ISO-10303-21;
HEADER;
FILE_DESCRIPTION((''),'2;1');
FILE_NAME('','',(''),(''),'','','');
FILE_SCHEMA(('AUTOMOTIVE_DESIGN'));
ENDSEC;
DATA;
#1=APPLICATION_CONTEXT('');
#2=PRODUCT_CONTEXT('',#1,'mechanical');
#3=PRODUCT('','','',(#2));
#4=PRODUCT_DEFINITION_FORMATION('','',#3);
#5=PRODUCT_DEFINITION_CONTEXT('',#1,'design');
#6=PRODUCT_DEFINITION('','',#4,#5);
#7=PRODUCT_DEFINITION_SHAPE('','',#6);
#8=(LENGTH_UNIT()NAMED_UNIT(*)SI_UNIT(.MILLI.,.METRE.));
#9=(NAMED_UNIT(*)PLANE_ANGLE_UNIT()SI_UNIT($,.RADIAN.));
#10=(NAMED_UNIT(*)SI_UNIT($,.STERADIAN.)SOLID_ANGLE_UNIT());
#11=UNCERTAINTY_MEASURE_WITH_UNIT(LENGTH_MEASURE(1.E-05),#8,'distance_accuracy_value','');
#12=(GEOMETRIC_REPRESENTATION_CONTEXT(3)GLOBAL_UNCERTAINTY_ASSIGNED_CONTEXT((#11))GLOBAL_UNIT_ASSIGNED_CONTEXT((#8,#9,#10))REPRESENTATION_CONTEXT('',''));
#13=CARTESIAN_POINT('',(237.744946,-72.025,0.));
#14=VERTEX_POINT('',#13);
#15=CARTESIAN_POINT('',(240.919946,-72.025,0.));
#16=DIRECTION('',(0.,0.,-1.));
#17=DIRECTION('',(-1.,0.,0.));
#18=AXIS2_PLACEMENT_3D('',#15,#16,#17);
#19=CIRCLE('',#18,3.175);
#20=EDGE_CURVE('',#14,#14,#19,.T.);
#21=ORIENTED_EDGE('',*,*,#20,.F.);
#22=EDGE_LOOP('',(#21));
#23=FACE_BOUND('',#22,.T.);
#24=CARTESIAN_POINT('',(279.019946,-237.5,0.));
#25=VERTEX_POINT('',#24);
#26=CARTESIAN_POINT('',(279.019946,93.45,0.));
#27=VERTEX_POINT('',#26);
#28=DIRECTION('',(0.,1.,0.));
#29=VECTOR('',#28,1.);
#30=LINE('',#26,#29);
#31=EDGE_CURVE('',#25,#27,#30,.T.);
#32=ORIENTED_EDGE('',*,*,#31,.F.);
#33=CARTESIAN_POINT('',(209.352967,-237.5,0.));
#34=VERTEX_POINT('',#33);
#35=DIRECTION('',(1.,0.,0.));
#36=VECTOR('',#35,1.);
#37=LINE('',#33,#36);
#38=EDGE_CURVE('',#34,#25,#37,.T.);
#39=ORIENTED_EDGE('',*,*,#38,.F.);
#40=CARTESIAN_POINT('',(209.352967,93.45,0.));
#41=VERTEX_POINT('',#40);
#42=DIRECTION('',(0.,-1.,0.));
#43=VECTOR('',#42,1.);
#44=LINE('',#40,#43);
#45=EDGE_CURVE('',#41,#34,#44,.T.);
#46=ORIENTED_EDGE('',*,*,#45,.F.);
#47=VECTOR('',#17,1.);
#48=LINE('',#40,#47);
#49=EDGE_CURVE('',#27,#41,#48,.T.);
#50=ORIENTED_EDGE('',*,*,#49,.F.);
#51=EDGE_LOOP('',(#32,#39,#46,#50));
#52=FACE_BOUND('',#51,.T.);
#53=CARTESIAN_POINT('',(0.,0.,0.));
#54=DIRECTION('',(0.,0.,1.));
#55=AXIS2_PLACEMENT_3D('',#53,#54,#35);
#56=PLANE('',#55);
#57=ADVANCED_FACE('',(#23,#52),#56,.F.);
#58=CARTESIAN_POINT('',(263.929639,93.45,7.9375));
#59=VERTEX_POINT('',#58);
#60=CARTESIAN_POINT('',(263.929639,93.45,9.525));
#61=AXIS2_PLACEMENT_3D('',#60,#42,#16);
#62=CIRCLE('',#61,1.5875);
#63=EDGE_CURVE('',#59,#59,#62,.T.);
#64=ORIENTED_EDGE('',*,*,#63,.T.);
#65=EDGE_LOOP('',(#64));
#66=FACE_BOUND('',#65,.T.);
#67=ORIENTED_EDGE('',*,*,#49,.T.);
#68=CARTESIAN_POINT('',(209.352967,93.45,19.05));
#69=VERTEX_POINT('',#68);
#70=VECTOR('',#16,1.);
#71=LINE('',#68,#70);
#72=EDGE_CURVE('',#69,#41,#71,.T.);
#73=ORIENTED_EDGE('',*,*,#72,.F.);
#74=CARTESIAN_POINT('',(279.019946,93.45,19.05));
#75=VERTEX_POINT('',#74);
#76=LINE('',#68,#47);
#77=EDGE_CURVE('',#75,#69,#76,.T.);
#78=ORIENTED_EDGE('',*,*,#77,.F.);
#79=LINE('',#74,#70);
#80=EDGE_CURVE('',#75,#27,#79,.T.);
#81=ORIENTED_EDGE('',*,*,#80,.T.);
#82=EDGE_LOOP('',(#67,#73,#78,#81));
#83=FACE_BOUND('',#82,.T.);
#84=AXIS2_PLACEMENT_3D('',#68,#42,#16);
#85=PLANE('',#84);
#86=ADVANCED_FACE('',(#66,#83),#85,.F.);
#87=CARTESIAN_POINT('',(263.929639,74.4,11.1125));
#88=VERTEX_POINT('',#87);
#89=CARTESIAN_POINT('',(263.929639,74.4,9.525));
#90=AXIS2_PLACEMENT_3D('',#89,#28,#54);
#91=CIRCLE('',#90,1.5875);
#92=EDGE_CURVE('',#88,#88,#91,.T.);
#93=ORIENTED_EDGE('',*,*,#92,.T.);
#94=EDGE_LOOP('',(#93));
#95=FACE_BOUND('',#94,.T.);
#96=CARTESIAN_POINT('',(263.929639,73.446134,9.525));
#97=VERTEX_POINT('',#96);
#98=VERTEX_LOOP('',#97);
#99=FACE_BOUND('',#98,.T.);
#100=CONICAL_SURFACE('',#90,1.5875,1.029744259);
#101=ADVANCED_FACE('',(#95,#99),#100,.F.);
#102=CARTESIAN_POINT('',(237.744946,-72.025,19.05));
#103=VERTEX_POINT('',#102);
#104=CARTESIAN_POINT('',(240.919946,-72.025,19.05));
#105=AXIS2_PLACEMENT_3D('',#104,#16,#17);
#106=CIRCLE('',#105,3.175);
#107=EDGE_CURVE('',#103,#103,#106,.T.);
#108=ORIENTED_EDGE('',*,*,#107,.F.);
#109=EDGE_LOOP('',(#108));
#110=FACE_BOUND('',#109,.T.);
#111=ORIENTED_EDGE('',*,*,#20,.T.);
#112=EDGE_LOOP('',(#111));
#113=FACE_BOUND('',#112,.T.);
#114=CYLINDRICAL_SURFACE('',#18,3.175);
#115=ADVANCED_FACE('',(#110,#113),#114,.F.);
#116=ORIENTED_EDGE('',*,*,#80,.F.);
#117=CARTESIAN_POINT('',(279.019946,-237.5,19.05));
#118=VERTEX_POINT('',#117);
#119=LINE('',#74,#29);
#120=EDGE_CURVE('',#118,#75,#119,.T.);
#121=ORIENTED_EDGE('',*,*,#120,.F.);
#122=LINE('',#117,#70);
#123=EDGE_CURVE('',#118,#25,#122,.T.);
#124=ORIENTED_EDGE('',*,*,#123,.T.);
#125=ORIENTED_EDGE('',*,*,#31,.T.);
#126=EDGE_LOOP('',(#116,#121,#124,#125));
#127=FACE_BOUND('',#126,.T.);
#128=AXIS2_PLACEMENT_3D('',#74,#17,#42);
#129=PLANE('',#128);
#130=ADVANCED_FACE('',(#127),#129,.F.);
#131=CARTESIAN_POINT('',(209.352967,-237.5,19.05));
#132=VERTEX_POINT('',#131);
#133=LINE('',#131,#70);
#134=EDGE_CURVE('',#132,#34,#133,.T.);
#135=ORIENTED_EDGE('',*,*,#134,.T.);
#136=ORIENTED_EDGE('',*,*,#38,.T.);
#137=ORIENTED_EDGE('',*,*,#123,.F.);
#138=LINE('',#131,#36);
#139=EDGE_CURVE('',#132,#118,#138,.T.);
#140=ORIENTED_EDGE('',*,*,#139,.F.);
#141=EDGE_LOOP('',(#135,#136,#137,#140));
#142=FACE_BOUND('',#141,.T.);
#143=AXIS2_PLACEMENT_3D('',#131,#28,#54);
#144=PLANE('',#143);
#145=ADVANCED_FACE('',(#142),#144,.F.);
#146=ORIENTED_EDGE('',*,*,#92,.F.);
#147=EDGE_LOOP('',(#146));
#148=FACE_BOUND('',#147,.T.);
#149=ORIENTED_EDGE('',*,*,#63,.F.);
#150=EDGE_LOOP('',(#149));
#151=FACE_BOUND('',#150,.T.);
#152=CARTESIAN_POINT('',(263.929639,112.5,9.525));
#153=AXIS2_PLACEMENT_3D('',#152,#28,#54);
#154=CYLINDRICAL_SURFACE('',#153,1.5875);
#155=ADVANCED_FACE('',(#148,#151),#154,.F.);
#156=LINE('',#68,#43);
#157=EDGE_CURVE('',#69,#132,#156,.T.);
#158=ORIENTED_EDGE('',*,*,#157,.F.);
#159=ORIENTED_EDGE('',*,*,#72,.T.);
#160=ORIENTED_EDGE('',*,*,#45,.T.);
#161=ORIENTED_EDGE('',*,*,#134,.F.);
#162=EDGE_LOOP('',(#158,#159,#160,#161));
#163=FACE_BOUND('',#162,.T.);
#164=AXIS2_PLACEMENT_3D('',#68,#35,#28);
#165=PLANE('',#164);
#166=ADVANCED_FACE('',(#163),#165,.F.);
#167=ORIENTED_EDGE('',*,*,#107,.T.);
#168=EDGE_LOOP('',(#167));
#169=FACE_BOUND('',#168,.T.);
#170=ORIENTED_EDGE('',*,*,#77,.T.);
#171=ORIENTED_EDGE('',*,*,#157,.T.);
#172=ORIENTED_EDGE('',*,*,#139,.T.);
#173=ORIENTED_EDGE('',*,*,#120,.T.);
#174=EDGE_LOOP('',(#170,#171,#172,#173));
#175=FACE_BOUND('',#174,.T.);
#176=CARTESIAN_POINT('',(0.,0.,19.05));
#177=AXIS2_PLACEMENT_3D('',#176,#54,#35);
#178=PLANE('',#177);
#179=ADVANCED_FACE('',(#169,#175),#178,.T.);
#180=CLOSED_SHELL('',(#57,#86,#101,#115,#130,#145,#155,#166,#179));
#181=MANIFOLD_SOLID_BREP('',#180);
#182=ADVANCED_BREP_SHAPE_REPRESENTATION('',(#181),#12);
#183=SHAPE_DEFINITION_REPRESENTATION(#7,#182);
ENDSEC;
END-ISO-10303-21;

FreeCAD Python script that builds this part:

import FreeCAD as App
import Part
import Sketcher

V = App.Vector
Q = App.Units.Quantity

doc = App.newDocument("Part")
body = doc.addObject("PartDesign::Body", "Body")

sketch1 = body.newObject("Sketcher::SketchObject", "Sketch")
sketch1.AttachmentSupport = (doc.getObject("XY_Plane"), [""])
sketch1.MapMode = "FlatFace"
sketch1.addGeometry([
    Part.LineSegment(V(209, 93, 0), V(209, -237, 0)),
    Part.LineSegment(V(209, -237, 0), V(279, -237, 0)),
    Part.LineSegment(V(279, -237, 0), V(279, 93, 0)),
    Part.LineSegment(V(279, 93, 0), V(209, 93, 0)),
], False)
sketch1.addConstraint([
    Sketcher.Constraint("Coincident", 0, 2, 1, 1),
    Sketcher.Constraint("Coincident", 1, 2, 2, 1),
    Sketcher.Constraint("Coincident", 2, 2, 3, 1),
    Sketcher.Constraint("Coincident", 3, 2, 0, 1),
    Sketcher.Constraint("Vertical", 0),
    Sketcher.Constraint("Horizontal", 1),
    Sketcher.Constraint("Vertical", 2),
    Sketcher.Constraint("Horizontal", 3),
    Sketcher.Constraint("DistanceY", 0, 2, 0, 1, Q("330.95 mm")),
    Sketcher.Constraint("DistanceX", 1, 1, 1, 2, Q("69.666979 mm")),
    Sketcher.Constraint("DistanceY", 0, 2, -1, 1, Q("237.5 mm")),
    Sketcher.Constraint("DistanceX", -1, 1, 0, 2, Q("209.352967 mm")),
])
pad1 = body.newObject("PartDesign::Pad", "Pad")
pad1.Profile = sketch1
pad1.Length = Q("0.75 in")

sketch2 = body.newObject("Sketcher::SketchObject", "Sketch001")
sketch2.AttachmentSupport = (doc.getObject("XY_Plane"), [""])
sketch2.MapMode = "FlatFace"
sketch2.addGeometry(Part.Circle(V(240.9, -72, 0), V(0, 0, 1), 3.2), False)
sketch2.addConstraint([
    Sketcher.Constraint("Diameter", 0, Q("0.25 in")),
    Sketcher.Constraint("DistanceY", 0, 3, -1, 1, Q("72.025 mm")),
    Sketcher.Constraint("DistanceX", -1, 1, 0, 3, Q("240.919946 mm")),
])
doc.recompute()
hole = body.newObject("PartDesign::Hole", "Hole")
hole.Profile = sketch2
hole.ThreadType = "None"
hole.Diameter = Q("0.25 in")
hole.DepthType = "ThroughAll"
hole.Reversed = True

sketch3 = body.newObject("Sketcher::SketchObject", "Sketch002")
sketch3.AttachmentSupport = (doc.getObject("XZ_Plane"), [""])
sketch3.MapMode = "FlatFace"
sketch3.AttachmentOffset = App.Placement(V(0, 0, -112.5), App.Rotation())
sketch3.addGeometry([
    Part.Circle(V(-151.5, 446.6, 0), V(0, 0, 1), 1.6),
    Part.Circle(V(-129.5, 519.2, 0), V(0, 0, 1), 1.6),
    Part.Circle(V(200.3, 340.2, 0), V(0, 0, 1), 1.6),
    Part.Circle(V(216.3, 393.1, 0), V(0, 0, 1), 1.6),
    Part.Circle(V(263.9, 215, 0), V(0, 0, 1), 1.6),
    Part.Circle(V(282.8, 215, 0), V(0, 0, 1), 1.6),
    Part.Circle(V(282.8, 180.1, 0), V(0, 0, 1), 1.6),
    Part.Circle(V(282.8, 9.5, 0), V(0, 0, 1), 1.6),
    Part.Circle(V(263.9, 180.1, 0), V(0, 0, 1), 1.6),
    Part.Circle(V(263.9, 9.5, 0), V(0, 0, 1), 1.6),
], False)
sketch3.addConstraint([
    Sketcher.Constraint("Equal", 0, 1),
    Sketcher.Constraint("Equal", 1, 2),
    Sketcher.Constraint("Equal", 2, 3),
    Sketcher.Constraint("Equal", 3, 4),
    Sketcher.Constraint("Equal", 4, 5),
    Sketcher.Constraint("Equal", 5, 6),
    Sketcher.Constraint("Equal", 6, 7),
    Sketcher.Constraint("Equal", 7, 8),
    Sketcher.Constraint("Equal", 8, 9),
    Sketcher.Constraint("Horizontal", 4, 3, 5, 3),
    Sketcher.Constraint("Horizontal", 6, 3, 8, 3),
    Sketcher.Constraint("Horizontal", 7, 3, 9, 3),
    Sketcher.Constraint("Vertical", 5, 3, 6, 3),
    Sketcher.Constraint("Vertical", 6, 3, 7, 3),
    Sketcher.Constraint("Vertical", 4, 3, 8, 3),
    Sketcher.Constraint("Vertical", 8, 3, 9, 3),
    Sketcher.Constraint("Diameter", 0, Q("0.125 in")),
    Sketcher.Constraint("DistanceY", -1, 1, 7, 3, Q("0.375 in")),
    Sketcher.Constraint("DistanceY", 6, 3, 5, 3, Q("1.375 in")),
    Sketcher.Constraint("DistanceX", 1, 3, -1, 1, Q("129.54859 mm")),
    Sketcher.Constraint("DistanceY", -1, 1, 1, 3, Q("519.243691 mm")),
    Sketcher.Constraint("DistanceX", -1, 1, 3, 3, Q("216.310689 mm")),
    Sketcher.Constraint("DistanceX", -1, 1, 4, 3, Q("263.929639 mm")),
    Sketcher.Constraint("DistanceY", -1, 1, 4, 3, Q("215.033709 mm")),
    Sketcher.Constraint("DistanceX", -1, 1, 7, 3, Q("282.796618 mm")),
    Sketcher.Constraint("DistanceX", 2, 3, 3, 3, Q("16.033992 mm")),
    Sketcher.Constraint("DistanceY", 2, 3, 3, 3, Q("52.977742 mm")),
    Sketcher.Constraint("DistanceY", 3, 3, 0, 3, Q("53.49567 mm")),
    Sketcher.Constraint("DistanceX", 0, 3, -1, 1, Q("151.520966 mm")),
    Sketcher.Constraint("DistanceY", -1, 1, 0, 3, Q("446.644997 mm")),
])
doc.recompute()
hole2 = body.newObject("PartDesign::Hole", "Hole001")
hole2.Profile = sketch3
hole2.ThreadType = "None"
hole2.Diameter = Q("0.125 in")
hole2.DepthType = "Dimension"
hole2.Depth = Q("1.5 in")
hole2.DrillPoint = "Angled"
hole2.DrillPointAngle = 118
hole2.HoleCutType = "Countersink"
hole2.HoleCutDiameter = Q("0.4 in")
hole2.HoleCutCountersinkAngle = 82
hole2.Reversed = True

doc.recompute()
